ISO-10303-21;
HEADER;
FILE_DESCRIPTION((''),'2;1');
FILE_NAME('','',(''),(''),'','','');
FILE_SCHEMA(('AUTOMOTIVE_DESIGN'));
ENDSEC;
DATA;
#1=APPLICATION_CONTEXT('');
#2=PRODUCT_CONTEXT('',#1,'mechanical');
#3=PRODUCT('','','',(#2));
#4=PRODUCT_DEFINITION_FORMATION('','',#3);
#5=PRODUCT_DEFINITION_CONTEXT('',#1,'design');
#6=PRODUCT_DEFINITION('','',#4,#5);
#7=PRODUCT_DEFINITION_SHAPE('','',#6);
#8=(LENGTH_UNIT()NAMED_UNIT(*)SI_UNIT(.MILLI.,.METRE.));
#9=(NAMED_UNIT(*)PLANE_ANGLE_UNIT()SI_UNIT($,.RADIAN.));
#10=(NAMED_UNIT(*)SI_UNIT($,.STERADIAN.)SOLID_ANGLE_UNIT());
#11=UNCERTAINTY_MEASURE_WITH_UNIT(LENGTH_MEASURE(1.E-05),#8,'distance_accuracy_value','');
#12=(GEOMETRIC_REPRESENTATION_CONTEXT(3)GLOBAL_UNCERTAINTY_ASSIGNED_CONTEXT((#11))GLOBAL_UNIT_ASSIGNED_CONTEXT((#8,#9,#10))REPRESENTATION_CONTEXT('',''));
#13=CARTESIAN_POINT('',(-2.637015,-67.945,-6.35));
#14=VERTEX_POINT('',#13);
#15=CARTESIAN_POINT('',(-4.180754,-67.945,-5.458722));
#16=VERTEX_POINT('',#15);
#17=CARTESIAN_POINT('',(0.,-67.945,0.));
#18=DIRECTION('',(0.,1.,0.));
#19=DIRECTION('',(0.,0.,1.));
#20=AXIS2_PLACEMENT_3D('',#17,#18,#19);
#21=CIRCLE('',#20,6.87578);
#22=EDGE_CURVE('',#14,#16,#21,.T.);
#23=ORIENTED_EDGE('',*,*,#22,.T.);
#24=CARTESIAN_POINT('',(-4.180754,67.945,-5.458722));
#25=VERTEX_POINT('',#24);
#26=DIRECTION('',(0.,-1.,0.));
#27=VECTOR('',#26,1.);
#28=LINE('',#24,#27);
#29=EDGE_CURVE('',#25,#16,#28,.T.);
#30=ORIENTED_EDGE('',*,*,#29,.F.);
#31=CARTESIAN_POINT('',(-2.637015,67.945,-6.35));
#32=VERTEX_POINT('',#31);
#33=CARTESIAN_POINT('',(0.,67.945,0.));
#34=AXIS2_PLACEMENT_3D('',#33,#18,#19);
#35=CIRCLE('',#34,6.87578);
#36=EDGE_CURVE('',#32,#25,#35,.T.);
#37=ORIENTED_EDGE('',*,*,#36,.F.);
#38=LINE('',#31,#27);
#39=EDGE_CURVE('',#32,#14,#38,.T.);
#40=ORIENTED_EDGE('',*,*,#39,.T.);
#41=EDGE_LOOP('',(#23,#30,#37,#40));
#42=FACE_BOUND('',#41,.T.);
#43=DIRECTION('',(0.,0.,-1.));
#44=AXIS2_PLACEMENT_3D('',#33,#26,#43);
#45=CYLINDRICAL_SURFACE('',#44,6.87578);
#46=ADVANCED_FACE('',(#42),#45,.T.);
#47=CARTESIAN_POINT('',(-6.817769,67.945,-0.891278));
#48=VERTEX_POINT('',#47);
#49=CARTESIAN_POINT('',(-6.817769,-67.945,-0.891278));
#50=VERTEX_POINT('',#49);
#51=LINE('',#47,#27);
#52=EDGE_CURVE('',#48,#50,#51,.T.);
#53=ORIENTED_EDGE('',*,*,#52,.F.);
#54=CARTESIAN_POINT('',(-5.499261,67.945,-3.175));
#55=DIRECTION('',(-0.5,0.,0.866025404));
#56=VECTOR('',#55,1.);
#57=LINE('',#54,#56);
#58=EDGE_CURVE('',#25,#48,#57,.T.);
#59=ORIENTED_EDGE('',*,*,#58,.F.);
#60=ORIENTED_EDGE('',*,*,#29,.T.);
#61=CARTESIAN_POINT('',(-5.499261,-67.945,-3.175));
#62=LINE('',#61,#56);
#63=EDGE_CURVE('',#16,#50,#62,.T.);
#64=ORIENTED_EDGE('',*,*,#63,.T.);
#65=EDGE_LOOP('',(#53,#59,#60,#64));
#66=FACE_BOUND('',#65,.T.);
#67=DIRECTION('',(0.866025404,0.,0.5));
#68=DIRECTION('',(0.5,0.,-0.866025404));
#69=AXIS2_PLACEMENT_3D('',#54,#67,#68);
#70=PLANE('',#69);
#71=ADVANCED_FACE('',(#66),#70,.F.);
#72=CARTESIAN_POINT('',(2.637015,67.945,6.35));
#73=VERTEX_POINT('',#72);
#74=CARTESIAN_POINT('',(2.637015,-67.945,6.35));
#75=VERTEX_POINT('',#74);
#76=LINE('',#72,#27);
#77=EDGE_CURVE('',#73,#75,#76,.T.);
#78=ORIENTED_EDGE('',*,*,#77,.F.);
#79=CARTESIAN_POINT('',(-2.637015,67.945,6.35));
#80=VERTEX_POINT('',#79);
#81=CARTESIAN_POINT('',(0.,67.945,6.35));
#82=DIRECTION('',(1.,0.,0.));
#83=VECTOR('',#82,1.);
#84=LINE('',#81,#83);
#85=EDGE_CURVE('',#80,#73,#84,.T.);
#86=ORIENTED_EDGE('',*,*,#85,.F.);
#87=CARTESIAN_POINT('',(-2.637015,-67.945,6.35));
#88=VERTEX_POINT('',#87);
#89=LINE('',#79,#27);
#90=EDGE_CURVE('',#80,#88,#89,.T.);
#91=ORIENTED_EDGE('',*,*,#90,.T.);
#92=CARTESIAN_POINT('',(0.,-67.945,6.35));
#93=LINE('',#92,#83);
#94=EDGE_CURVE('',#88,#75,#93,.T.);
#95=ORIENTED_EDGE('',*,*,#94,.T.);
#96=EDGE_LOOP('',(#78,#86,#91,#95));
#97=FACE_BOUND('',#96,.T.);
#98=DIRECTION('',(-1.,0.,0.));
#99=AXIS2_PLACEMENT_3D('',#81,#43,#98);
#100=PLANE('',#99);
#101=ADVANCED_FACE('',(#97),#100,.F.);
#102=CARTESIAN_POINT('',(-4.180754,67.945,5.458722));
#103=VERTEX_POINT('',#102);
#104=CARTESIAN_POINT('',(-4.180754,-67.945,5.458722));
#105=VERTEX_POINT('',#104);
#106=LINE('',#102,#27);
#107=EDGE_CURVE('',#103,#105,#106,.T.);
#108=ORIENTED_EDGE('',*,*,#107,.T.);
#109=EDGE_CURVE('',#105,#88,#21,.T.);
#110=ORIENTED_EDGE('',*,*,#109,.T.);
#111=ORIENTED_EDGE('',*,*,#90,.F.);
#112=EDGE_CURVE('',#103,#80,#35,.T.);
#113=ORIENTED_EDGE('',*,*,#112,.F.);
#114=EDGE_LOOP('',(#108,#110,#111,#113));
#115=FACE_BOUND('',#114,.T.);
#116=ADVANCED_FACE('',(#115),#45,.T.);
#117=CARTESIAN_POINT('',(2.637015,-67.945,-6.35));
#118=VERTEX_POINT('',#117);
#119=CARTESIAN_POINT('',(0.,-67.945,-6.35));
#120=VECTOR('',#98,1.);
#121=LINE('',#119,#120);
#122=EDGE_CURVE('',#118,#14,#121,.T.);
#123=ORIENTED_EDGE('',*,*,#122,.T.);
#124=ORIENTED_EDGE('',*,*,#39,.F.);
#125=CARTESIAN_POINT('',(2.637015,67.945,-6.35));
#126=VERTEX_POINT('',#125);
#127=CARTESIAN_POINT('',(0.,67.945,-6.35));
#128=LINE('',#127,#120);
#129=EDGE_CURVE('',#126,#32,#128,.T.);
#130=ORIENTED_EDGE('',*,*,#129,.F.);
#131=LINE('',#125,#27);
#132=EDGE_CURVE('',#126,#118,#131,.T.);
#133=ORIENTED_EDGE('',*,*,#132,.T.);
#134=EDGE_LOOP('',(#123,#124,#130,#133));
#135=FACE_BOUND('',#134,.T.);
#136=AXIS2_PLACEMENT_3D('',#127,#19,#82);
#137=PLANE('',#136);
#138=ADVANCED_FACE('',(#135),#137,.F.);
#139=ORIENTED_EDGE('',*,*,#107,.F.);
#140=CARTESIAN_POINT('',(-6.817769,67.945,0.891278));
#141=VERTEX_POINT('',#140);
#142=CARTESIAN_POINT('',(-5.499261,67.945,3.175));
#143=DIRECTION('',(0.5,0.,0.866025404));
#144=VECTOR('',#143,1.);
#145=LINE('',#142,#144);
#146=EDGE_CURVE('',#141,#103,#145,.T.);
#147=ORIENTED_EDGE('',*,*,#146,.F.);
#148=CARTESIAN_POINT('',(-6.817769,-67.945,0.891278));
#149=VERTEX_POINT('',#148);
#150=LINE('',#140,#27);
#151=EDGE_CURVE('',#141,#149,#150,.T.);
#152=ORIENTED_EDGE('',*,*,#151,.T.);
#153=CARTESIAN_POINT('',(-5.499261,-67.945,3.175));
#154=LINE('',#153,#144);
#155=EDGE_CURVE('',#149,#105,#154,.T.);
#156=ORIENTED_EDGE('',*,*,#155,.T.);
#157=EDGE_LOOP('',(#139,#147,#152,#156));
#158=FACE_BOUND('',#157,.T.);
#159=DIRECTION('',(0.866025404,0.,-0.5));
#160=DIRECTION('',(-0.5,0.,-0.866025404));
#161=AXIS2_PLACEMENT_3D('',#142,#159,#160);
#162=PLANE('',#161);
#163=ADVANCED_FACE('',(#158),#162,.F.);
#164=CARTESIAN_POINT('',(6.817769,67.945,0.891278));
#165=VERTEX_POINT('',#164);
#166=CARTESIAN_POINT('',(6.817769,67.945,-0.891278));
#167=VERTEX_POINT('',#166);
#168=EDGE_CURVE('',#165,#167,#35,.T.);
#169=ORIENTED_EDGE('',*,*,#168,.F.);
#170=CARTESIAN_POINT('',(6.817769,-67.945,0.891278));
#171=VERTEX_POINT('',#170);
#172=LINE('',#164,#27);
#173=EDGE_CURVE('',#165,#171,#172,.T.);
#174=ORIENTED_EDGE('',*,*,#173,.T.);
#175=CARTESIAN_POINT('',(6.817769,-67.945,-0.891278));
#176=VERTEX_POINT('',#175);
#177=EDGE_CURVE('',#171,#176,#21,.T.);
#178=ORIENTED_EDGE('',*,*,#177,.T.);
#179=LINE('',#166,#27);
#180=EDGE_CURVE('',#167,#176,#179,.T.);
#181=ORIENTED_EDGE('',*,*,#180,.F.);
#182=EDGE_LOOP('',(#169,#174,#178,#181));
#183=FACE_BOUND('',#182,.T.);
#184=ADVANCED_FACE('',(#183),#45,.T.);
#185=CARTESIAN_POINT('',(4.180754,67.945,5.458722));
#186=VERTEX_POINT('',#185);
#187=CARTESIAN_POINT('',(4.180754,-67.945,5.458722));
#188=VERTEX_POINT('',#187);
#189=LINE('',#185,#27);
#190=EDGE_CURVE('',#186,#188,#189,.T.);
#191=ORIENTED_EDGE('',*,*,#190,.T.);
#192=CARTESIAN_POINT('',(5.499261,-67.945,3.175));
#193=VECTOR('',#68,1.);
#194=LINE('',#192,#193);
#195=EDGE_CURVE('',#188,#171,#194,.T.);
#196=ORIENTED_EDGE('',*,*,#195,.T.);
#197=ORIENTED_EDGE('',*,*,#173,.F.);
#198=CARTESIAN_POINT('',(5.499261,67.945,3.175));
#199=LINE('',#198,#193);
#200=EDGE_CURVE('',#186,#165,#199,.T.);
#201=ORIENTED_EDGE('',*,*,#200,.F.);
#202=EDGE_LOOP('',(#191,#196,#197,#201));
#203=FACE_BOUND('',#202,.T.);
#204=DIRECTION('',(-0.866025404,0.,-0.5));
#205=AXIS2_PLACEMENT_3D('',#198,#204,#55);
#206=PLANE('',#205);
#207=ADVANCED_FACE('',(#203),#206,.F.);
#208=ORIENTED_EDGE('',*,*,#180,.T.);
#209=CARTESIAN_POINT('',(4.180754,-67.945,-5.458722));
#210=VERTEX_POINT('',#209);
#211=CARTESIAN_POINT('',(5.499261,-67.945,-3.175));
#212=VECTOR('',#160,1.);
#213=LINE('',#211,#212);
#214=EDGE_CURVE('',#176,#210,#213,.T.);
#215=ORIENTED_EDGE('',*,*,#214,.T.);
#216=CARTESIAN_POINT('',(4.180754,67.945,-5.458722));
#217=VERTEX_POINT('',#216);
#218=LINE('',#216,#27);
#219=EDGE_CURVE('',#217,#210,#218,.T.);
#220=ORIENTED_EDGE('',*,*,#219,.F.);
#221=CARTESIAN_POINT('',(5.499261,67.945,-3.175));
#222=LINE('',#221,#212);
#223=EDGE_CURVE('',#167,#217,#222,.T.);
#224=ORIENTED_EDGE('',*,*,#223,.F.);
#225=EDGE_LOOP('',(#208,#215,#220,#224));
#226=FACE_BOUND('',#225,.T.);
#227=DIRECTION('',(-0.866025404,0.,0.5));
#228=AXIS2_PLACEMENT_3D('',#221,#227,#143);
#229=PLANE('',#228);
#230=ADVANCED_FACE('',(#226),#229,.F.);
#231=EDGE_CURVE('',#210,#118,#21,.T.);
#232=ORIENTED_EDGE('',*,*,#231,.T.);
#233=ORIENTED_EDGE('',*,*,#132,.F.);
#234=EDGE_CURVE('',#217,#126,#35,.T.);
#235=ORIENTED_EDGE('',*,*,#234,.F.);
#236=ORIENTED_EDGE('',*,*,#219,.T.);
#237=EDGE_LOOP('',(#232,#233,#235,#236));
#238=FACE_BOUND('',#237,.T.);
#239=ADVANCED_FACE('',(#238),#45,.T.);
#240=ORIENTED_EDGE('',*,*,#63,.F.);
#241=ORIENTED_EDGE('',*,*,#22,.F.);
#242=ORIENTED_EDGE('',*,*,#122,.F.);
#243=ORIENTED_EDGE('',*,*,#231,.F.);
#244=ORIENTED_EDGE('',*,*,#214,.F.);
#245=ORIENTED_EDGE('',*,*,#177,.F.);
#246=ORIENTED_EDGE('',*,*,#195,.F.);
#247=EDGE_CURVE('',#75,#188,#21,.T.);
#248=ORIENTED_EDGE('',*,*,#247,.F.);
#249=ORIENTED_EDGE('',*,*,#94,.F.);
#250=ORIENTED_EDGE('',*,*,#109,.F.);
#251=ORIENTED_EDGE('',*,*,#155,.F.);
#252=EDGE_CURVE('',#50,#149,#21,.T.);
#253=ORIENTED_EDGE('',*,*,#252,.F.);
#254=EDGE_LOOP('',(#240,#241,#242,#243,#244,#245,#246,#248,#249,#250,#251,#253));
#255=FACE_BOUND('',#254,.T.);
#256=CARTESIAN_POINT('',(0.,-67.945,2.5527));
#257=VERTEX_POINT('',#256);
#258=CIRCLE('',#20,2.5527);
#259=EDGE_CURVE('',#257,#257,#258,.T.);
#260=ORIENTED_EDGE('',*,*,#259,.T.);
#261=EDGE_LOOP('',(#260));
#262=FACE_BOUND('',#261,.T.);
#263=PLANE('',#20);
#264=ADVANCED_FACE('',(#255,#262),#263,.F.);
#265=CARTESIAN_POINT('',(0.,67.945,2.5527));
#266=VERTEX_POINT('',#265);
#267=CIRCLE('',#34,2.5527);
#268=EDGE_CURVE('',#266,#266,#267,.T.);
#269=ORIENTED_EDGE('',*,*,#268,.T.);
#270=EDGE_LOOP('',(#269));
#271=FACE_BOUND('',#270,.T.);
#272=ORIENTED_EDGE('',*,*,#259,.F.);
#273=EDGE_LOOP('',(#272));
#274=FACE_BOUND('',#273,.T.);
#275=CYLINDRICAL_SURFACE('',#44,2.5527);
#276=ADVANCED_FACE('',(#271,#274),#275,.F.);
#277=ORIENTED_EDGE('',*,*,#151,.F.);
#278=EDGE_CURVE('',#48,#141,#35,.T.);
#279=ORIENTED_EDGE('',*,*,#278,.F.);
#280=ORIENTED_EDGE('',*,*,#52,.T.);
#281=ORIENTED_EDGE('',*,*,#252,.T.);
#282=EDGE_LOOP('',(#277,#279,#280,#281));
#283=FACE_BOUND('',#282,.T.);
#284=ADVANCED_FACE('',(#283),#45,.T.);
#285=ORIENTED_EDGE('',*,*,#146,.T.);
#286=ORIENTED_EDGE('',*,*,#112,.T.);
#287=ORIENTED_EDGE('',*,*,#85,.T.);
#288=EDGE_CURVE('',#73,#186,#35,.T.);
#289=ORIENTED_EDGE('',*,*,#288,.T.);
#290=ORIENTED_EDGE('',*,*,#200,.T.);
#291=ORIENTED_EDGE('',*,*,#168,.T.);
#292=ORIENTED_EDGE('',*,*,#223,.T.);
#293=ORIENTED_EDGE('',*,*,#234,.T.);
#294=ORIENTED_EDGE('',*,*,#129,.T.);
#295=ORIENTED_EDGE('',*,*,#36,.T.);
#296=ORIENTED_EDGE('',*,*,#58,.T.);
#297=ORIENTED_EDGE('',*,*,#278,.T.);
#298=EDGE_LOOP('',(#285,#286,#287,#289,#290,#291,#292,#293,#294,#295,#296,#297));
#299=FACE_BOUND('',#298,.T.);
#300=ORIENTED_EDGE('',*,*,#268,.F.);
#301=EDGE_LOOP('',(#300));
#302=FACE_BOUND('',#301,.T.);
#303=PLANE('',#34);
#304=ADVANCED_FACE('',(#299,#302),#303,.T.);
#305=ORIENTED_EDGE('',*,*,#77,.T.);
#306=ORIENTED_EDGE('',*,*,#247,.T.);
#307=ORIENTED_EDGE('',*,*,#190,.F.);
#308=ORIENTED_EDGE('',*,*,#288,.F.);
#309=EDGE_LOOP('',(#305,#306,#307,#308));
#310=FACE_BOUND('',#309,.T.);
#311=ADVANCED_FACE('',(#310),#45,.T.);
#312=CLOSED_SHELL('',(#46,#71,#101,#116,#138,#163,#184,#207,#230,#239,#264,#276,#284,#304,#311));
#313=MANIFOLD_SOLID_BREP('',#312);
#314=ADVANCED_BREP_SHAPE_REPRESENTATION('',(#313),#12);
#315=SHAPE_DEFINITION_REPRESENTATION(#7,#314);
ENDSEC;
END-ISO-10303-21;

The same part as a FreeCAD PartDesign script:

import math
import FreeCAD as App
import Part
import Sketcher

V = App.Vector
Q = App.Units.Quantity

doc = App.newDocument("Part")
body = doc.addObject("PartDesign::Body", "Body")

# Sketch on XZ plane
sketch1 = body.newObject("Sketcher::SketchObject", "Sketch")
sketch1.AttachmentSupport = (doc.getObject("XZ_Plane"), [""])
sketch1.MapMode = "FlatFace"
sketch1.addGeometry([
    Part.ArcOfCircle(Part.Circle(V(0, 0, 0), V(0, 0, 1), 6.9), math.radians(52.55), math.radians(67.45)),  # 0
    Part.LineSegment(V(4.2, 5.5, 0), V(6.8, 0.9, 0)),  # 1
    Part.ArcOfCircle(Part.Circle(V(0, 0, 0), V(0, 0, 1), 6.9), math.radians(0), math.radians(7.45)),  # 2
    Part.ArcOfCircle(Part.Circle(V(0, 0, 0), V(0, 0, 1), 6.9), math.radians(-7.45), math.radians(0)),  # 3
    Part.LineSegment(V(6.8, -0.9, 0), V(4.2, -5.5, 0)),  # 4
    Part.ArcOfCircle(Part.Circle(V(0, 0, 0), V(0, 0, 1), 6.9), math.radians(-67.45), math.radians(-52.55)),  # 5
    Part.LineSegment(V(2.6, -6.3, 0), V(-2.6, -6.3, 0)),  # 6
    Part.ArcOfCircle(Part.Circle(V(0, 0, 0), V(0, 0, 1), 6.9), math.radians(-127.45), math.radians(-112.55)),  # 7
    Part.LineSegment(V(-4.2, -5.5, 0), V(-6.8, -0.9, 0)),  # 8
    Part.ArcOfCircle(Part.Circle(V(0, 0, 0), V(0, 0, 1), 6.9), math.radians(172.55), math.radians(187.45)),  # 9
    Part.LineSegment(V(-6.8, 0.9, 0), V(-4.2, 5.5, 0)),  # 10
    Part.ArcOfCircle(Part.Circle(V(0, 0, 0), V(0, 0, 1), 6.9), math.radians(112.55), math.radians(127.45)),  # 11
    Part.LineSegment(V(-2.6, 6.3, 0), V(2.6, 6.3, 0)),  # 12
    Part.Circle(V(0, 0, 0), V(0, 0, 1), 2.6),  # 13
], False)
sketch1.addConstraint([
    Sketcher.Constraint("Coincident", 0, 1, 1, 1),
    Sketcher.Constraint("Coincident", 1, 2, 2, 2),
    Sketcher.Constraint("Tangent", 2, 1, 3, 2),
    Sketcher.Constraint("Coincident", 3, 1, 4, 1),
    Sketcher.Constraint("Coincident", 4, 2, 5, 2),
    Sketcher.Constraint("Coincident", 5, 1, 6, 1),
    Sketcher.Constraint("Coincident", 6, 2, 7, 2),
    Sketcher.Constraint("Coincident", 7, 1, 8, 1),
    Sketcher.Constraint("Coincident", 8, 2, 9, 2),
    Sketcher.Constraint("Coincident", 9, 1, 10, 1),
    Sketcher.Constraint("Coincident", 10, 2, 11, 2),
    Sketcher.Constraint("Coincident", 11, 1, 12, 1),
    Sketcher.Constraint("Coincident", 12, 2, 0, 2),
    Sketcher.Constraint("Horizontal", 6),
    Sketcher.Constraint("Horizontal", 12),
    Sketcher.Constraint("Coincident", 0, 3, -1, 1),
    Sketcher.Constraint("Coincident", 2, 3, -1, 1),
    Sketcher.Constraint("Coincident", 5, 3, -1, 1),
    Sketcher.Constraint("Coincident", 7, 3, -1, 1),
    Sketcher.Constraint("Coincident", 9, 3, -1, 1),
    Sketcher.Constraint("Coincident", 11, 3, -1, 1),
    Sketcher.Constraint("Coincident", 13, 3, -1, 1),
    Sketcher.Constraint("Equal", 0, 2),
    Sketcher.Constraint("Equal", 2, 3),
    Sketcher.Constraint("Equal", 3, 5),
    Sketcher.Constraint("Equal", 5, 7),
    Sketcher.Constraint("Equal", 7, 9),
    Sketcher.Constraint("Equal", 9, 11),
    Sketcher.Constraint("PointOnObject", 2, 1, -1),
    Sketcher.Constraint("Parallel", 1, 8),
    Sketcher.Constraint("Parallel", 4, 10),
    Sketcher.Constraint("Horizontal", 4, 2, 7, 1),
    Sketcher.Constraint("Horizontal", 3, 1, 8, 2),
    Sketcher.Constraint("Horizontal", 1, 2, 9, 1),
    Sketcher.Constraint("Vertical", 1, 2, 3, 1),
    Sketcher.Constraint("Vertical", 6, 2, 11, 1),
    Sketcher.Constraint("Diameter", 13, Q("0.201 in")),
    Sketcher.Constraint("Angle", 1, Q("-60 deg")),
    Sketcher.Constraint("Radius", 0, Q("0.2707 in")),
    Sketcher.Constraint("DistanceY", 5, 1, -1, 1, Q("0.25 in")),
    Sketcher.Constraint("Distance", 1, 5.274031),
])
pad1 = body.newObject("PartDesign::Pad", "Pad")
pad1.Profile = sketch1
pad1.Length = Q("5.35 in")
pad1.Midplane = True

doc.recompute()
